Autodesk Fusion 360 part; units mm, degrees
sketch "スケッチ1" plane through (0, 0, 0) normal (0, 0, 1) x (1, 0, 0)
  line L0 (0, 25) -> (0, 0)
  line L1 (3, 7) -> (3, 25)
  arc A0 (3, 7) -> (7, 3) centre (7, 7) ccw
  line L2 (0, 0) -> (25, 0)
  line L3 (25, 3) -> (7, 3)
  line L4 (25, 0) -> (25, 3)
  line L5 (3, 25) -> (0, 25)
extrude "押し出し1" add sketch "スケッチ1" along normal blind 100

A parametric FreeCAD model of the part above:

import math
import FreeCAD as App
import Part
import Sketcher
Q = App.Units.Quantity

doc = App.newDocument("Part")
params = doc.addObject("Spreadsheet::Sheet", "Params")
for row, (alias, value) in enumerate([
    ("sketch1_radius", "4 mm"),
    ("sketch1_width", "3 mm"),
    ("sketch1_width2", "25 mm"),
    ("pad1_length", "100 mm"),
], start=1):
    params.set(f"A{row}", alias)
    params.set(f"B{row}", "=" + value)
    params.setAlias(f"B{row}", alias)

body = doc.addObject("PartDesign::Body", "Body")

# Sketch on XY plane
sketch1 = body.newObject("Sketcher::SketchObject", "Sketch")
sketch1.AttachmentSupport = (doc.getObject("XY_Plane"), [""])
sketch1.MapMode = "FlatFace"
sketch1.addGeometry([
    Part.LineSegment(App.Vector(3, 25, 0), App.Vector(0, 25, 0)),  # 0
    Part.LineSegment(App.Vector(0, 25, 0), App.Vector(0, 0, 0)),  # 1
    Part.LineSegment(App.Vector(0, 0, 0), App.Vector(25, 0, 0)),  # 2
    Part.LineSegment(App.Vector(25, 0, 0), App.Vector(25, 3, 0)),  # 3
    Part.LineSegment(App.Vector(25, 3, 0), App.Vector(7, 3, 0)),  # 4
    Part.ArcOfCircle(Part.Circle(App.Vector(7, 7, 0), App.Vector(0, 0, 1), 4), math.radians(180), math.radians(270)),  # 5
    Part.LineSegment(App.Vector(3, 7, 0), App.Vector(3, 25, 0)),  # 6
], False)
sketch1.addConstraint([
    Sketcher.Constraint("Coincident", 0, 2, 1, 1),
    Sketcher.Constraint("Coincident", 1, 2, 2, 1),
    Sketcher.Constraint("Coincident", 2, 2, 3, 1),
    Sketcher.Constraint("Coincident", 3, 2, 4, 1),
    Sketcher.Constraint("Tangent", 4, 2, 5, 2),
    Sketcher.Constraint("Tangent", 5, 1, 6, 1),
    Sketcher.Constraint("Coincident", 6, 2, 0, 1),
    Sketcher.Constraint("Horizontal", 0),
    Sketcher.Constraint("Vertical", 1),
    Sketcher.Constraint("Horizontal", 2),
    Sketcher.Constraint("Vertical", 3),
    Sketcher.Constraint("Horizontal", 4),
    Sketcher.Constraint("Vertical", 6),
    Sketcher.Constraint("Coincident", 1, 2, -1, 1),
    Sketcher.Constraint("Equal", 2, 1),
    Sketcher.Constraint("Equal", 0, 3),
    Sketcher.Constraint("Radius", 5, Q("4 mm")),
    Sketcher.Constraint("DistanceX", 0, 2, 0, 1, Q("3 mm")),
    Sketcher.Constraint("DistanceX", 2, 1, 2, 2, Q("25 mm")),
])
sketch1.setExpression("Constraints[16]", "Params.sketch1_radius")
sketch1.setExpression("Constraints[17]", "Params.sketch1_width")
sketch1.setExpression("Constraints[18]", "Params.sketch1_width2")
pad1 = body.newObject("PartDesign::Pad", "Pad")
pad1.Profile = sketch1
pad1.setExpression("Length", "Params.pad1_length")

doc.recompute()
